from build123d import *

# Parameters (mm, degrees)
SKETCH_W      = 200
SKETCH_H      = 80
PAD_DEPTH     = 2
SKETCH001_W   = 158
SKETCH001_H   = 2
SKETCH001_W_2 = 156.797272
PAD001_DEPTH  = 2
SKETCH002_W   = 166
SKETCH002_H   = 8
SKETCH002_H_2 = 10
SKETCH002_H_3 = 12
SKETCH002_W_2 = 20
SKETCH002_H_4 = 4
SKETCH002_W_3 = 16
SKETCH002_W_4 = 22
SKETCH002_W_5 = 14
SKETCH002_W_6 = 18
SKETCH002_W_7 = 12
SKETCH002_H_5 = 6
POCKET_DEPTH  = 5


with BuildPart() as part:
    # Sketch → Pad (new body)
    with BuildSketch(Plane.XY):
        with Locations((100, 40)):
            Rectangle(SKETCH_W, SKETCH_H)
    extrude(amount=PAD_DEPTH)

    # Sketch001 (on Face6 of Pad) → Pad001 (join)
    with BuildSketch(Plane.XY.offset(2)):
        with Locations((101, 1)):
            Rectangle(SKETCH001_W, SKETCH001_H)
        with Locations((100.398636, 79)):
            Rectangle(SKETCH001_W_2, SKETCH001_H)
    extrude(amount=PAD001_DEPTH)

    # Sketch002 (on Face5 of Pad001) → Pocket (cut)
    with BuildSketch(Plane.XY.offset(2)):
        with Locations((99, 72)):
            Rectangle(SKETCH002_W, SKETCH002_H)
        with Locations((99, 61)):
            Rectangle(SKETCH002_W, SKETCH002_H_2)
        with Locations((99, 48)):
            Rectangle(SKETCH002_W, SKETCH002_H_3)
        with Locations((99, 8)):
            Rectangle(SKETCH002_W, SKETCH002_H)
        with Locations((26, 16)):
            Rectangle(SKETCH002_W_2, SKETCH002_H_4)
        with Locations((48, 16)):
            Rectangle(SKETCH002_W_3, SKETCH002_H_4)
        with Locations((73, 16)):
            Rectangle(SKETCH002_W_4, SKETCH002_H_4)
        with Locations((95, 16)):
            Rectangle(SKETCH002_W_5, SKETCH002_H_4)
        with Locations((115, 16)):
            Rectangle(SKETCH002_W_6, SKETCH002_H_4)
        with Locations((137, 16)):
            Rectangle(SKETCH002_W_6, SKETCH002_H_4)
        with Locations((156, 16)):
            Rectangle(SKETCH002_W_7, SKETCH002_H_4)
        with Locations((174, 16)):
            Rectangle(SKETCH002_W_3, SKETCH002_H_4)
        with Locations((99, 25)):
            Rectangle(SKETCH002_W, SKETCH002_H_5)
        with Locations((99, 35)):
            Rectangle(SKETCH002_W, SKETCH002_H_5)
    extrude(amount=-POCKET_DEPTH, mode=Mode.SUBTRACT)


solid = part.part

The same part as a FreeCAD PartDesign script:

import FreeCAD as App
import Part
import Sketcher
from FreeCAD import Vector
Q = App.Units.Quantity


def add_polygon(sketch, points):
    """Adds a closed chain of lines whose ends are joined by coincident constraints."""
    first, n = sketch.GeometryCount, len(points)
    for a, b in zip(points, points[1:] + points[:1]):
        sketch.addGeometry(Part.LineSegment(App.Vector(*a, 0), App.Vector(*b, 0)), False)
    for i in range(n):
        sketch.addConstraint(Sketcher.Constraint("Coincident", first + i, 2, first + (i + 1) % n, 1))

doc = App.newDocument("Part")
body = doc.addObject("PartDesign::Body", "Body")

# Sketch on XY plane
sketch1 = doc.addObject("Sketcher::SketchObject", "Sketch")
body.addObject(sketch1)
sketch1.AttachmentSupport = (doc.XY_Plane, [""])
sketch1.MapMode = "FlatFace"
add_polygon(sketch1, [(0, 80), (0, 0), (200, 0), (200, 80)])  # lines 0-3
sketch1.addConstraint([
    Sketcher.Constraint("Vertical", 0),
    Sketcher.Constraint("Horizontal", 1),
    Sketcher.Constraint("Vertical", 2),
    Sketcher.Constraint("Horizontal", 3),
    Sketcher.Constraint("Coincident", 0, 2, -1, 1),
    Sketcher.Constraint("DistanceX", 1, 1, 1, 2, Q("200 mm")),
    Sketcher.Constraint("DistanceY", 0, 2, 0, 1, Q("80 mm")),
])
pad1 = doc.addObject("PartDesign::Pad", "Pad")
body.addObject(pad1)
pad1.Profile = sketch1
pad1.Length = 2

# Sketch on XY plane
sketch2 = doc.addObject("Sketcher::SketchObject", "Sketch001")
body.addObject(sketch2)
sketch2.AttachmentSupport = (doc.XY_Plane, [""])
sketch2.MapMode = "FlatFace"
sketch2.AttachmentOffset = App.Placement(Vector(0, 0, 2), App.Rotation())
add_polygon(sketch2, [(22, 2), (22, 0), (180, 0), (180, 2)])  # lines 0-3
add_polygon(sketch2, [(22, 80), (22, 78), (178.8, 78), (178.8, 80)])  # lines 4-7
sketch2.addConstraint([
    Sketcher.Constraint("Vertical", 0),
    Sketcher.Constraint("Horizontal", 1),
    Sketcher.Constraint("Vertical", 2),
    Sketcher.Constraint("Horizontal", 3),
    Sketcher.Constraint("Vertical", 4),
    Sketcher.Constraint("Horizontal", 5),
    Sketcher.Constraint("Vertical", 6),
    Sketcher.Constraint("Horizontal", 7),
    Sketcher.Constraint("PointOnObject", 0, 2, -1),
    Sketcher.Constraint("Vertical", 3, 2, 4, 2),
    Sketcher.Constraint("Equal", 2, 4),
    Sketcher.Constraint("DistanceX", 1, 1, 1, 2, Q("158 mm")),
    Sketcher.Constraint("DistanceY", 0, 2, 0, 1, Q("2 mm")),
    Sketcher.Constraint("DistanceX", -1, 1, 0, 2, Q("22 mm")),
    Sketcher.Constraint("DistanceY", -1, 1, 4, 2, Q("78 mm")),
    Sketcher.Constraint("DistanceX", 5, 1, 5, 2, Q("156.797272 mm")),
])
pad2 = doc.addObject("PartDesign::Pad", "Pad001")
body.addObject(pad2)
pad2.Profile = sketch2
pad2.Length = 2

# Sketch on XY plane
sketch3 = doc.addObject("Sketcher::SketchObject", "Sketch002")
body.addObject(sketch3)
sketch3.AttachmentSupport = (doc.XY_Plane, [""])
sketch3.MapMode = "FlatFace"
sketch3.AttachmentOffset = App.Placement(Vector(0, 0, 2), App.Rotation())
add_polygon(sketch3, [(16, 76), (16, 68), (182, 68), (182, 76)])  # lines 0-3
add_polygon(sketch3, [(16, 66), (16, 56), (182, 56), (182, 66)])  # lines 4-7
add_polygon(sketch3, [(16, 54), (16, 42), (182, 42), (182, 54)])  # lines 8-11
add_polygon(sketch3, [(16, 12), (16, 4), (182, 4), (182, 12)])  # lines 12-15
add_polygon(sketch3, [(16, 18), (16, 14), (36, 14), (36, 18)])  # lines 16-19
add_polygon(sketch3, [(40, 18), (40, 14), (56, 14), (56, 18)])  # lines 20-23
add_polygon(sketch3, [(62, 18), (62, 14), (84, 14), (84, 18)])  # lines 24-27
add_polygon(sketch3, [(88, 18), (88, 14), (102, 14), (102, 18)])  # lines 28-31
add_polygon(sketch3, [(106, 18), (106, 14), (124, 14), (124, 18)])  # lines 32-35
add_polygon(sketch3, [(128, 18), (128, 14), (146, 14), (146, 18)])  # lines 36-39
add_polygon(sketch3, [(150, 18), (150, 14), (162, 14), (162, 18)])  # lines 40-43
add_polygon(sketch3, [(166, 18), (166, 14), (182, 14), (182, 18)])  # lines 44-47
add_polygon(sketch3, [(16, 28), (16, 22), (182, 22), (182, 28)])  # lines 48-51
add_polygon(sketch3, [(16, 38), (16, 32), (182, 32), (182, 38)])  # lines 52-55
sketch3.addConstraint([
    Sketcher.Constraint("Vertical", 0),
    Sketcher.Constraint("Horizontal", 1),
    Sketcher.Constraint("Vertical", 2),
    Sketcher.Constraint("Horizontal", 3),
    Sketcher.Constraint("Vertical", 4),
    Sketcher.Constraint("Horizontal", 5),
    Sketcher.Constraint("Vertical", 6),
    Sketcher.Constraint("Horizontal", 7),
    Sketcher.Constraint("Vertical", 8),
    Sketcher.Constraint("Horizontal", 9),
    Sketcher.Constraint("Vertical", 10),
    Sketcher.Constraint("Horizontal", 11),
    Sketcher.Constraint("Vertical", 12),
    Sketcher.Constraint("Horizontal", 13),
    Sketcher.Constraint("Vertical", 14),
    Sketcher.Constraint("Horizontal", 15),
    Sketcher.Constraint("Vertical", 16),
    Sketcher.Constraint("Horizontal", 17),
    Sketcher.Constraint("Vertical", 18),
    Sketcher.Constraint("Horizontal", 19),
    Sketcher.Constraint("Vertical", 20),
    Sketcher.Constraint("Horizontal", 21),
    Sketcher.Constraint("Vertical", 22),
    Sketcher.Constraint("Horizontal", 23),
    Sketcher.Constraint("Vertical", 24),
    Sketcher.Constraint("Horizontal", 25),
    Sketcher.Constraint("Vertical", 26),
    Sketcher.Constraint("Horizontal", 27),
    Sketcher.Constraint("Vertical", 28),
    Sketcher.Constraint("Horizontal", 29),
    Sketcher.Constraint("Vertical", 30),
    Sketcher.Constraint("Horizontal", 31),
    Sketcher.Constraint("Vertical", 32),
    Sketcher.Constraint("Horizontal", 33),
    Sketcher.Constraint("Vertical", 34),
    Sketcher.Constraint("Horizontal", 35),
    Sketcher.Constraint("Vertical", 36),
    Sketcher.Constraint("Horizontal", 37),
    Sketcher.Constraint("Vertical", 38),
    Sketcher.Constraint("Horizontal", 39),
    Sketcher.Constraint("Vertical", 40),
    Sketcher.Constraint("Horizontal", 41),
    Sketcher.Constraint("Vertical", 42),
    Sketcher.Constraint("Horizontal", 43),
    Sketcher.Constraint("Vertical", 44),
    Sketcher.Constraint("Horizontal", 45),
    Sketcher.Constraint("Vertical", 46),
    Sketcher.Constraint("Horizontal", 47),
    Sketcher.Constraint("Vertical", 48),
    Sketcher.Constraint("Horizontal", 49),
    Sketcher.Constraint("Vertical", 50),
    Sketcher.Constraint("Horizontal", 51),
    Sketcher.Constraint("Vertical", 52),
    Sketcher.Constraint("Horizontal", 53),
    Sketcher.Constraint("Vertical", 54),
    Sketcher.Constraint("Horizontal", 55),
    Sketcher.Constraint("Horizontal", 17, 2, 20, 2),
    Sketcher.Constraint("Horizontal", 19, 2, 22, 2),
    Sketcher.Constraint("Horizontal", 21, 2, 24, 2),
    Sketcher.Constraint("Horizontal", 23, 2, 26, 2),
    Sketcher.Constraint("Horizontal", 25, 2, 28, 2),
    Sketcher.Constraint("Horizontal", 27, 2, 30, 2),
    Sketcher.Constraint("Horizontal", 29, 2, 32, 2),
    Sketcher.Constraint("Horizontal", 31, 2, 34, 2),
    Sketcher.Constraint("Horizontal", 33, 2, 36, 2),
    Sketcher.Constraint("Horizontal", 35, 2, 38, 2),
    Sketcher.Constraint("Horizontal", 37, 2, 40, 2),
    Sketcher.Constraint("Horizontal", 39, 2, 42, 2),
    Sketcher.Constraint("Horizontal", 41, 2, 44, 2),
    Sketcher.Constraint("Horizontal", 43, 2, 46, 2),
    Sketcher.Constraint("Vertical", 3, 2, 4, 2),
    Sketcher.Constraint("Vertical", 2, 2, 5, 2),
    Sketcher.Constraint("Vertical", 7, 2, 8, 2),
    Sketcher.Constraint("Vertical", 6, 2, 9, 2),
    Sketcher.Constraint("Vertical", 11, 2, 12, 2),
    Sketcher.Constraint("Vertical", 10, 2, 13, 2),
    Sketcher.Constraint("Vertical", 15, 2, 16, 2),
    Sketcher.Constraint("Vertical", 14, 2, 45, 2),
    Sketcher.Constraint("Vertical", 19, 2, 48, 2),
    Sketcher.Constraint("Vertical", 46, 2, 49, 2),
    Sketcher.Constraint("Vertical", 51, 2, 52, 2),
    Sketcher.Constraint("Vertical", 50, 2, 53, 2),
    Sketcher.Constraint("Equal", 35, 37),
    Sketcher.Constraint("Equal", 23, 45),
    Sketcher.Constraint("Equal", 43, 8),
    Sketcher.Constraint("Equal", 2, 12),
    Sketcher.Constraint("Equal", 50, 52),
    Sketcher.Constraint("DistanceX", 1, 1, 1, 2, Q("166 mm")),
    Sketcher.Constraint("DistanceX", 17, 1, 17, 2, Q("20 mm")),
    Sketcher.Constraint("DistanceX", 21, 1, 21, 2, Q("16 mm")),
    Sketcher.Constraint("DistanceX", 25, 1, 25, 2, Q("22 mm")),
    Sketcher.Constraint("DistanceX", 29, 1, 29, 2, Q("14 mm")),
    Sketcher.Constraint("DistanceX", 33, 1, 33, 2, Q("18 mm")),
    Sketcher.Constraint("DistanceX", 41, 1, 41, 2, Q("12 mm")),
    Sketcher.Constraint("DistanceY", 0, 2, 0, 1, Q("8 mm")),
    Sketcher.Constraint("DistanceY", 4, 2, 4, 1, Q("10 mm")),
    Sketcher.Constraint("DistanceY", 16, 2, 16, 1, Q("4 mm")),
    Sketcher.Constraint("DistanceY", 48, 2, 48, 1, Q("6 mm")),
    Sketcher.Constraint("DistanceX", -1, 1, 0, 2, Q("16 mm")),
    Sketcher.Constraint("DistanceY", -1, 1, 0, 2, Q("68 mm")),
    Sketcher.Constraint("DistanceY", -1, 1, 4, 2, Q("56 mm")),
    Sketcher.Constraint("DistanceY", -1, 1, 8, 2, Q("42 mm")),
    Sketcher.Constraint("DistanceY", -1, 1, 12, 2, Q("4 mm")),
    Sketcher.Constraint("DistanceY", -1, 1, 16, 2, Q("14 mm")),
    Sketcher.Constraint("DistanceX", -1, 1, 20, 2, Q("40 mm")),
    Sketcher.Constraint("DistanceX", -1, 1, 24, 2, Q("62 mm")),
    Sketcher.Constraint("DistanceX", -1, 1, 28, 2, Q("88 mm")),
    Sketcher.Constraint("DistanceX", -1, 1, 32, 2, Q("106 mm")),
    Sketcher.Constraint("DistanceX", -1, 1, 36, 2, Q("128 mm")),
    Sketcher.Constraint("DistanceX", -1, 1, 40, 2, Q("150 mm")),
    Sketcher.Constraint("DistanceY", -1, 1, 48, 2, Q("22 mm")),
    Sketcher.Constraint("DistanceY", -1, 1, 52, 2, Q("32 mm")),
])
pocket1 = doc.addObject("PartDesign::Pocket", "Pocket")
body.addObject(pocket1)
pocket1.Profile = sketch3
pocket1.Length = 5

doc.recompute()
